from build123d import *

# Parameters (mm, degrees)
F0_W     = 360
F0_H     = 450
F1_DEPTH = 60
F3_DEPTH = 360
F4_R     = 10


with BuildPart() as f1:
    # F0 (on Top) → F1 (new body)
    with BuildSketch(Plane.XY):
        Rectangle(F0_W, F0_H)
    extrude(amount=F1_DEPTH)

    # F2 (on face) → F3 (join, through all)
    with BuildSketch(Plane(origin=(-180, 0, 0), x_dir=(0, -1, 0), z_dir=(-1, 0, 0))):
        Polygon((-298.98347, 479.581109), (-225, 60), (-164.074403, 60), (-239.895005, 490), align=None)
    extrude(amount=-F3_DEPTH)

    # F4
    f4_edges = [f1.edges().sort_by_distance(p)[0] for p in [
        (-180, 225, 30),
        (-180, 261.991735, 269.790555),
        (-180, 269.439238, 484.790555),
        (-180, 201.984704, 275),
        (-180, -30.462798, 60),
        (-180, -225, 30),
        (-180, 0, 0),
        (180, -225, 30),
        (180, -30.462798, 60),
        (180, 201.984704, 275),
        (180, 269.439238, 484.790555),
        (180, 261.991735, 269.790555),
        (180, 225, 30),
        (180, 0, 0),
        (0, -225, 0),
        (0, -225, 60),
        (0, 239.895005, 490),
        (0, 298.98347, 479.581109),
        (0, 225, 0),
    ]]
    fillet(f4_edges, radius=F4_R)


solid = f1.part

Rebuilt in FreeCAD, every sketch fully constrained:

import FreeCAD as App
import Part
import Sketcher

V = App.Vector
Q = App.Units.Quantity


def edges_at(feature, points):
    """Names of the edges that pass closest to the given points."""
    edges = feature.Shape.Edges
    near = lambda p: min(range(len(edges)), key=lambda i: edges[i].distToShape(Part.Vertex(*p))[0])
    return sorted({f"Edge{near(p) + 1}" for p in points})

doc = App.newDocument("Part")
body = doc.addObject("PartDesign::Body", "Body")

sketch1 = doc.addObject("Sketcher::SketchObject", "Sketch")
body.addObject(sketch1)
sketch1.AttachmentSupport = (doc.XY_Plane, [""])
sketch1.MapMode = "FlatFace"
sketch1.addGeometry([
    Part.LineSegment(V(-180, 225, 0), V(-180, -225, 0)),
    Part.LineSegment(V(-180, -225, 0), V(180, -225, 0)),
    Part.LineSegment(V(180, -225, 0), V(180, 225, 0)),
    Part.LineSegment(V(180, 225, 0), V(-180, 225, 0)),
], False)
sketch1.addConstraint([
    Sketcher.Constraint("Coincident", 0, 2, 1, 1),
    Sketcher.Constraint("Coincident", 1, 2, 2, 1),
    Sketcher.Constraint("Coincident", 2, 2, 3, 1),
    Sketcher.Constraint("Coincident", 3, 2, 0, 1),
    Sketcher.Constraint("Vertical", 0),
    Sketcher.Constraint("Horizontal", 1),
    Sketcher.Constraint("Vertical", 2),
    Sketcher.Constraint("Horizontal", 3),
    Sketcher.Constraint("Symmetric", 0, 2, 2, 2, -1, 1),
    Sketcher.Constraint("DistanceX", 1, 1, 1, 2, 360.0),
    Sketcher.Constraint("DistanceY", 0, 2, 0, 1, 450.0),
])
pad1 = doc.addObject("PartDesign::Pad", "Pad")
body.addObject(pad1)
pad1.Profile = sketch1
pad1.Length = 60

sketch2 = doc.addObject("Sketcher::SketchObject", "Sketch001")
body.addObject(sketch2)
sketch2.AttachmentSupport = (doc.YZ_Plane, [""])
sketch2.MapMode = "FlatFace"
sketch2.AttachmentOffset = App.Placement(V(0, 0, -180), App.Rotation())
sketch2.addGeometry([
    Part.LineSegment(V(299, 480, 0), V(225, 60, 0)),
    Part.LineSegment(V(225, 60, 0), V(164, 60, 0)),
    Part.LineSegment(V(164, 60, 0), V(240, 490, 0)),
    Part.LineSegment(V(240, 490, 0), V(299, 480, 0)),
], False)
sketch2.addConstraint([
    Sketcher.Constraint("Coincident", 0, 2, 1, 1),
    Sketcher.Constraint("Coincident", 1, 2, 2, 1),
    Sketcher.Constraint("Coincident", 2, 2, 3, 1),
    Sketcher.Constraint("Coincident", 3, 2, 0, 1),
    Sketcher.Constraint("Horizontal", 1),
    Sketcher.Constraint("Parallel", 0, 2),
    Sketcher.Constraint("Perpendicular", 2, 3),
    Sketcher.Constraint("Angle", 0, Q("-100 deg")),
    Sketcher.Constraint("Distance", 3, 60.0),
    Sketcher.Constraint("DistanceX", -1, 1, 0, 2, 225.0),
    Sketcher.Constraint("DistanceY", -1, 1, 0, 2, 60.0),
    Sketcher.Constraint("DistanceY", -1, 1, 2, 2, 490.0),
])
pad2 = doc.addObject("PartDesign::Pad", "Pad001")
body.addObject(pad2)
pad2.Profile = sketch2
pad2.Length = 360
doc.recompute()

fillet = doc.addObject("PartDesign::Fillet", "Fillet")
body.addObject(fillet)
fillet.Base = (pad2, edges_at(pad2, [
    (-180, 225, 30),
    (-180, 261.992, 269.791),
    (-180, 269.439, 484.791),
    (-180, 201.985, 275),
    (-180, -30.463, 60),
    (-180, -225, 30),
    (-180, 0, 0),
    (180, -225, 30),
    (180, -30.463, 60),
    (180, 201.985, 275),
    (180, 269.439, 484.791),
    (180, 261.992, 269.791),
    (180, 225, 30),
    (180, 0, 0),
    (0, -225, 0),
    (0, -225, 60),
    (0, 239.895, 490),
    (0, 298.983, 479.581),
    (0, 225, 0),
]))
fillet.Radius = 10

doc.recompute()
